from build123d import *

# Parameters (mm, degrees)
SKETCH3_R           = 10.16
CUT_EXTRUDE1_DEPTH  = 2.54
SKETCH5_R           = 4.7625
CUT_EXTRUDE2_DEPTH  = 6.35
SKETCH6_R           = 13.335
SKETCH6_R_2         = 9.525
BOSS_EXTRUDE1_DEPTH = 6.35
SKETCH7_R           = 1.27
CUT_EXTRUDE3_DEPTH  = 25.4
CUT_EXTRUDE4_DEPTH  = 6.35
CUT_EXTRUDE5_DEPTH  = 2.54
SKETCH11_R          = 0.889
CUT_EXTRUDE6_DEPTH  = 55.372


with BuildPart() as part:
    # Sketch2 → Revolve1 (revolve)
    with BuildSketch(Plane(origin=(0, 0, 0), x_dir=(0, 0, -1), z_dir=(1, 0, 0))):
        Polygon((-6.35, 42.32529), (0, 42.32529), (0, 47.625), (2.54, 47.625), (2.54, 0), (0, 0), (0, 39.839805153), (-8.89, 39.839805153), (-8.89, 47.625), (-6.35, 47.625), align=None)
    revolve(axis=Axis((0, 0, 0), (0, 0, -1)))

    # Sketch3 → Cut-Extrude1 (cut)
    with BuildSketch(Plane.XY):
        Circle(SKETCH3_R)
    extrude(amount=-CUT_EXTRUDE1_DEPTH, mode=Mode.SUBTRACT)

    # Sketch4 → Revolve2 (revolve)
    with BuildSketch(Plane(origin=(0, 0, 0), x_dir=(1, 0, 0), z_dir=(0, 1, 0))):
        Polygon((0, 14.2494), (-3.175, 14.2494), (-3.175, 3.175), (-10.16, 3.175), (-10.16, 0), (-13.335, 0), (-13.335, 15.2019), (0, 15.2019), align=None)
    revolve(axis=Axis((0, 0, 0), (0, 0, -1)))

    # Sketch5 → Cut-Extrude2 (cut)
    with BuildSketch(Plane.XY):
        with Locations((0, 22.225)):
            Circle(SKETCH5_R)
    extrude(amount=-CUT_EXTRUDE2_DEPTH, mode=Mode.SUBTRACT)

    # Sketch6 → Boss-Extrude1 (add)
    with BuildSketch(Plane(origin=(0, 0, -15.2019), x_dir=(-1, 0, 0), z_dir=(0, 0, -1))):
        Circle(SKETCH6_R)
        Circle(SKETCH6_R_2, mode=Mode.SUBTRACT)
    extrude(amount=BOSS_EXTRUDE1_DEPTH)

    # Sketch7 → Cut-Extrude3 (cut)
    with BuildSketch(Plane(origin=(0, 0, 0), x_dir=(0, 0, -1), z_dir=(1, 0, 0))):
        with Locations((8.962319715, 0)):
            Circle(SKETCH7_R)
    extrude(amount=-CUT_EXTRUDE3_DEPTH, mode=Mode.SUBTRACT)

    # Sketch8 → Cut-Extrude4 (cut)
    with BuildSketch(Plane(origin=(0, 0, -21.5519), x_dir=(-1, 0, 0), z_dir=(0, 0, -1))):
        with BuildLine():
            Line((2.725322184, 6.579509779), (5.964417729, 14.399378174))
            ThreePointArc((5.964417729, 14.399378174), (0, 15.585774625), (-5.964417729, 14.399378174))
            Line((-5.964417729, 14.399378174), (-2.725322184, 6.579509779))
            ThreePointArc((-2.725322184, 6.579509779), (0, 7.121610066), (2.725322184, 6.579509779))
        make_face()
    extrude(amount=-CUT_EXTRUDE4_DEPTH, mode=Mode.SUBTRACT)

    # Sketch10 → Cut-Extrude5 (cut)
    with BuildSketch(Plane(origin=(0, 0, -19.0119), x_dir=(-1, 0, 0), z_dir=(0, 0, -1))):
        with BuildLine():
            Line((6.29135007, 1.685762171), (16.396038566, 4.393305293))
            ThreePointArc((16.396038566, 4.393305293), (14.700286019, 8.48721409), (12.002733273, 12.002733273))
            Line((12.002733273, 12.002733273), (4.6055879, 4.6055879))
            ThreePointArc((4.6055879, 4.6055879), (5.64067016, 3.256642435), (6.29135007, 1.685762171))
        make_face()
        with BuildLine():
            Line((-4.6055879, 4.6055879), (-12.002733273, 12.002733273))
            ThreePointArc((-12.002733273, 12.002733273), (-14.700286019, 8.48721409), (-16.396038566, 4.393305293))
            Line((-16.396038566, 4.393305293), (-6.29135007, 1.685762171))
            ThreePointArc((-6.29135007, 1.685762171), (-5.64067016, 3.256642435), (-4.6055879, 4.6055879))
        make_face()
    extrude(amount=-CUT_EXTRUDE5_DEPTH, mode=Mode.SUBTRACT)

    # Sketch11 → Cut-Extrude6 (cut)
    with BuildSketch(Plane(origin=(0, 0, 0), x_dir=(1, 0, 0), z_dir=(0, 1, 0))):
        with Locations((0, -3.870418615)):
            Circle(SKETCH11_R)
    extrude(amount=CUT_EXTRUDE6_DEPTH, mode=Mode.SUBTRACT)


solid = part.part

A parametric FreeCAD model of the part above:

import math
import FreeCAD as App
import Part
import Sketcher
Q = App.Units.Quantity


def add_polygon(sketch, points):
    """Adds a closed chain of lines whose ends are joined by coincident constraints."""
    first, n = sketch.GeometryCount, len(points)
    for a, b in zip(points, points[1:] + points[:1]):
        sketch.addGeometry(Part.LineSegment(App.Vector(*a, 0), App.Vector(*b, 0)), False)
    for i in range(n):
        sketch.addConstraint(Sketcher.Constraint("Coincident", first + i, 2, first + (i + 1) % n, 1))

doc = App.newDocument("Part")
body = doc.addObject("PartDesign::Body", "Body")

# Sketch on YZ plane
sketch1 = body.newObject("Sketcher::SketchObject", "Sketch")
sketch1.AttachmentSupport = (doc.getObject("YZ_Plane"), [""])
sketch1.MapMode = "FlatFace"
add_polygon(sketch1, [(42.32529, 0), (42.32529, 6.35), (47.625, 6.35), (47.625, 8.89), (39.839805, 8.89), (39.839805, 0), (0, 0), (0, -2.54), (47.625, -2.54), (47.625, 0)])  # lines 0-9
sketch1.addConstraint([
    Sketcher.Constraint("Vertical", 0),
    Sketcher.Constraint("Horizontal", 1),
    Sketcher.Constraint("Vertical", 2),
    Sketcher.Constraint("Horizontal", 3),
    Sketcher.Constraint("Vertical", 4),
    Sketcher.Constraint("Horizontal", 5),
    Sketcher.Constraint("Vertical", 6),
    Sketcher.Constraint("Horizontal", 7),
    Sketcher.Constraint("Vertical", 8),
    Sketcher.Constraint("Horizontal", 9),
    Sketcher.Constraint("Coincident", 5, 2, -1, 1),
    Sketcher.Constraint("PointOnObject", 8, 2, -1),
    Sketcher.Constraint("Vertical", 2, 2, 7, 2),
    Sketcher.Constraint("Equal", 2, 6),
    Sketcher.Constraint("DistanceY", 2, 1, 2, 2, Q("0.1 in")),
    Sketcher.Constraint("DistanceY", 0, 1, 0, 2, Q("0.25 in")),
    Sketcher.Constraint("DistanceX", 7, 1, 7, 2, Q("1.875 in")),
    Sketcher.Constraint("DistanceX", 1, 1, 1, 2, Q("5.29971 mm")),
    Sketcher.Constraint("DistanceX", 3, 2, 3, 1, Q("7.785195 mm")),
])
revolution = body.newObject("PartDesign::Revolution", "Revolution")
revolution.Profile = sketch1
revolution.ReferenceAxis = (sketch1, ["V_Axis"])
revolution.Angle = 360

# Sketch on XY plane
sketch2 = body.newObject("Sketcher::SketchObject", "Sketch001")
sketch2.AttachmentSupport = (doc.getObject("XY_Plane"), [""])
sketch2.MapMode = "FlatFace"
sketch2.addGeometry(Part.Circle(App.Vector(0, 0, 0), App.Vector(0, 0, 1), 10.16), False)
sketch2.addConstraint([
    Sketcher.Constraint("Coincident", 0, 3, -1, 1),
    Sketcher.Constraint("Diameter", 0, Q("0.8 in")),
])
pocket1 = body.newObject("PartDesign::Pocket", "Pocket")
pocket1.Profile = sketch2
pocket1.Length = Q("0.1 in")

# Sketch on XZ plane
sketch3 = body.newObject("Sketcher::SketchObject", "Sketch002")
sketch3.AttachmentSupport = (doc.getObject("XZ_Plane"), [""])
sketch3.MapMode = "FlatFace"
add_polygon(sketch3, [(-3.175, -14.2494), (0, -14.2494), (0, -15.2019), (-13.335, -15.2019), (-13.335, 0), (-10.16, 0), (-10.16, -3.175), (-3.175, -3.175)])  # lines 0-7
sketch3.addConstraint([
    Sketcher.Constraint("Horizontal", 0),
    Sketcher.Constraint("Vertical", 1),
    Sketcher.Constraint("Horizontal", 2),
    Sketcher.Constraint("Vertical", 3),
    Sketcher.Constraint("Horizontal", 4),
    Sketcher.Constraint("Vertical", 5),
    Sketcher.Constraint("Horizontal", 6),
    Sketcher.Constraint("Vertical", 7),
    Sketcher.Constraint("PointOnObject", 0, 2, -2),
    Sketcher.Constraint("PointOnObject", 3, 2, -1),
    Sketcher.Constraint("Equal", 0, 4),
    Sketcher.Constraint("Equal", 4, 5),
    Sketcher.Constraint("DistanceX", 4, 2, -1, 1, Q("0.4 in")),
    Sketcher.Constraint("DistanceX", 0, 1, 0, 2, Q("0.125 in")),
    Sketcher.Constraint("DistanceY", 7, 2, 7, 1, Q("0.436 in")),
    Sketcher.Constraint("DistanceY", 1, 2, 1, 1, Q("0.0375 in")),
])
revolution2 = body.newObject("PartDesign::Revolution", "Revolution001")
revolution2.Profile = sketch3
revolution2.ReferenceAxis = (sketch3, ["V_Axis"])
revolution2.Angle = 360

# Sketch on XY plane
sketch4 = body.newObject("Sketcher::SketchObject", "Sketch003")
sketch4.AttachmentSupport = (doc.getObject("XY_Plane"), [""])
sketch4.MapMode = "FlatFace"
sketch4.addGeometry(Part.Circle(App.Vector(0, 22.225, 0), App.Vector(0, 0, 1), 4.7625), False)
sketch4.addConstraint([
    Sketcher.Constraint("PointOnObject", 0, 3, -2),
    Sketcher.Constraint("Diameter", 0, Q("0.375 in")),
    Sketcher.Constraint("DistanceY", -1, 1, 0, 3, Q("0.875 in")),
])
pocket2 = body.newObject("PartDesign::Pocket", "Pocket001")
pocket2.Profile = sketch4
pocket2.Length = Q("0.25 in")

# Sketch on XY plane
sketch5 = body.newObject("Sketcher::SketchObject", "Sketch004")
sketch5.AttachmentSupport = (doc.getObject("XY_Plane"), [""])
sketch5.MapMode = "FlatFace"
sketch5.AttachmentOffset = App.Placement(App.Vector(0, 0, -0.5985 * 25.4), App.Rotation())
sketch5.addGeometry([
    Part.Circle(App.Vector(0, 0, 0), App.Vector(0, 0, 1), 13.335),
    Part.Circle(App.Vector(0, 0, 0), App.Vector(0, 0, 1), 9.525),
], False)
sketch5.addConstraint([
    Sketcher.Constraint("Coincident", 0, 3, -1, 1),
    Sketcher.Constraint("Coincident", 1, 3, -1, 1),
    Sketcher.Constraint("Diameter", 0, Q("1.05 in")),
    Sketcher.Constraint("Diameter", 1, Q("0.75 in")),
])
pad1 = body.newObject("PartDesign::Pad", "Pad")
pad1.Profile = sketch5
pad1.Length = Q("0.25 in")
pad1.Reversed = True

# Sketch on YZ plane
sketch6 = body.newObject("Sketcher::SketchObject", "Sketch005")
sketch6.AttachmentSupport = (doc.getObject("YZ_Plane"), [""])
sketch6.MapMode = "FlatFace"
sketch6.addGeometry(Part.Circle(App.Vector(0, -8.96232, 0), App.Vector(0, 0, 1), 1.27), False)
sketch6.addConstraint([
    Sketcher.Constraint("PointOnObject", 0, 3, -2),
    Sketcher.Constraint("Diameter", 0, Q("0.1 in")),
    Sketcher.Constraint("DistanceY", 0, 3, -1, 1, Q("8.96232 mm")),
])
pocket3 = body.newObject("PartDesign::Pocket", "Pocket002")
pocket3.Profile = sketch6
pocket3.Length = Q("1 in")

# Sketch on XY plane
sketch7 = body.newObject("Sketcher::SketchObject", "Sketch006")
sketch7.AttachmentSupport = (doc.getObject("XY_Plane"), [""])
sketch7.MapMode = "FlatFace"
sketch7.AttachmentOffset = App.Placement(App.Vector(0, 0, -0.8485 * 25.4), App.Rotation())
sketch7.addGeometry([
    Part.LineSegment(App.Vector(-2.725322, 6.57951, 0), App.Vector(-5.964418, 14.399378, 0)),
    Part.ArcOfCircle(Part.Circle(App.Vector(0, 0, 0), App.Vector(0, 0, 1), 15.585775), math.radians(67.5), math.radians(112.5)),
    Part.LineSegment(App.Vector(5.964418, 14.399378, 0), App.Vector(2.725322, 6.57951, 0)),
    Part.ArcOfCircle(Part.Circle(App.Vector(0, 0, 0), App.Vector(0, 0, 1), 7.12161), math.radians(67.5), math.radians(112.5)),
], False)
sketch7.addConstraint([
    Sketcher.Constraint("Coincident", 0, 2, 1, 2),
    Sketcher.Constraint("Coincident", 1, 1, 2, 1),
    Sketcher.Constraint("Coincident", 2, 2, 3, 1),
    Sketcher.Constraint("Coincident", 3, 2, 0, 1),
    Sketcher.Constraint("Coincident", 1, 3, -1, 1),
    Sketcher.Constraint("Coincident", 3, 3, -1, 1),
    Sketcher.Constraint("Horizontal", 0, 2, 1, 1),
    Sketcher.Constraint("Horizontal", 2, 2, 3, 2),
    Sketcher.Constraint("Angle", 0, Q("112.5 deg")),
    Sketcher.Constraint("Radius", 3, Q("7.12161 mm")),
    Sketcher.Constraint("Radius", 1, Q("15.585775 mm")),
    Sketcher.Constraint("DistanceY", -1, 1, 0, 2, Q("14.399378 mm")),
])
pocket4 = body.newObject("PartDesign::Pocket", "Pocket003")
pocket4.Profile = sketch7
pocket4.Length = Q("0.25 in")
pocket4.Reversed = True

# Sketch on XY plane
sketch8 = body.newObject("Sketcher::SketchObject", "Sketch007")
sketch8.AttachmentSupport = (doc.getObject("XY_Plane"), [""])
sketch8.MapMode = "FlatFace"
sketch8.AttachmentOffset = App.Placement(App.Vector(0, 0, -0.7485 * 25.4), App.Rotation())
sketch8.addGeometry([
    Part.LineSegment(App.Vector(-6.29135, 1.685762, 0), App.Vector(-16.396039, 4.393305, 0)),  # 0
    Part.ArcOfCircle(Part.Circle(App.Vector(0, 0, 0), App.Vector(0, 0, 1), 16.974428), math.radians(135), math.radians(165)),  # 1
    Part.LineSegment(App.Vector(-12.002733, 12.002733, 0), App.Vector(-4.605588, 4.605588, 0)),  # 2
    Part.ArcOfCircle(Part.Circle(App.Vector(0, 0, 0), App.Vector(0, 0, 1), 6.513285), math.radians(135), math.radians(165)),  # 3
    Part.LineSegment(App.Vector(4.605588, 4.605588, 0), App.Vector(12.002733, 12.002733, 0)),  # 4
    Part.ArcOfCircle(Part.Circle(App.Vector(0, 0, 0), App.Vector(0, 0, 1), 16.974428), math.radians(15), math.radians(45)),  # 5
    Part.LineSegment(App.Vector(16.396039, 4.393305, 0), App.Vector(6.29135, 1.685762, 0)),  # 6
    Part.ArcOfCircle(Part.Circle(App.Vector(0, 0, 0), App.Vector(0, 0, 1), 6.513285), math.radians(15), math.radians(45)),  # 7
], False)
sketch8.addConstraint([
    Sketcher.Constraint("Coincident", 0, 2, 1, 2),
    Sketcher.Constraint("Coincident", 1, 1, 2, 1),
    Sketcher.Constraint("Coincident", 2, 2, 3, 1),
    Sketcher.Constraint("Coincident", 3, 2, 0, 1),
    Sketcher.Constraint("Coincident", 4, 2, 5, 2),
    Sketcher.Constraint("Coincident", 5, 1, 6, 1),
    Sketcher.Constraint("Coincident", 6, 2, 7, 1),
    Sketcher.Constraint("Coincident", 7, 2, 4, 1),
    Sketcher.Constraint("Coincident", 1, 3, -1, 1),
    Sketcher.Constraint("Coincident", 3, 3, -1, 1),
    Sketcher.Constraint("Coincident", 5, 3, -1, 1),
    Sketcher.Constraint("Coincident", 7, 3, -1, 1),
    Sketcher.Constraint("Equal", 1, 5),
    Sketcher.Constraint("Equal", 3, 7),
    Sketcher.Constraint("Perpendicular", 2, 4),
    Sketcher.Constraint("Horizontal", 1, 1, 4, 2),
    Sketcher.Constraint("Horizontal", 0, 2, 5, 1),
    Sketcher.Constraint("Horizontal", 3, 2, 6, 2),
    Sketcher.Constraint("Horizontal", 2, 2, 7, 2),
    Sketcher.Constraint("Angle", 0, Q("165 deg")),
    Sketcher.Constraint("Radius", 1, Q("16.974428 mm")),
    Sketcher.Constraint("Radius", 3, Q("6.513285 mm")),
    Sketcher.Constraint("DistanceX", 0, 2, -1, 1, Q("16.396039 mm")),
    Sketcher.Constraint("DistanceX", 2, 2, 4, 2, Q("16.608321 mm")),
])
pocket5 = body.newObject("PartDesign::Pocket", "Pocket004")
pocket5.Profile = sketch8
pocket5.Length = Q("0.1 in")
pocket5.Reversed = True

# Sketch on XZ plane
sketch9 = body.newObject("Sketcher::SketchObject", "Sketch008")
sketch9.AttachmentSupport = (doc.getObject("XZ_Plane"), [""])
sketch9.MapMode = "FlatFace"
sketch9.addGeometry(Part.Circle(App.Vector(0, 3.870419, 0), App.Vector(0, 0, 1), 0.889), False)
sketch9.addConstraint([
    Sketcher.Constraint("PointOnObject", 0, 3, -2),
    Sketcher.Constraint("Diameter", 0, Q("0.07 in")),
    Sketcher.Constraint("DistanceY", -1, 1, 0, 3, Q("3.870419 mm")),
])
pocket6 = body.newObject("PartDesign::Pocket", "Pocket005")
pocket6.Profile = sketch9
pocket6.Length = Q("2.18 in")

doc.recompute()
